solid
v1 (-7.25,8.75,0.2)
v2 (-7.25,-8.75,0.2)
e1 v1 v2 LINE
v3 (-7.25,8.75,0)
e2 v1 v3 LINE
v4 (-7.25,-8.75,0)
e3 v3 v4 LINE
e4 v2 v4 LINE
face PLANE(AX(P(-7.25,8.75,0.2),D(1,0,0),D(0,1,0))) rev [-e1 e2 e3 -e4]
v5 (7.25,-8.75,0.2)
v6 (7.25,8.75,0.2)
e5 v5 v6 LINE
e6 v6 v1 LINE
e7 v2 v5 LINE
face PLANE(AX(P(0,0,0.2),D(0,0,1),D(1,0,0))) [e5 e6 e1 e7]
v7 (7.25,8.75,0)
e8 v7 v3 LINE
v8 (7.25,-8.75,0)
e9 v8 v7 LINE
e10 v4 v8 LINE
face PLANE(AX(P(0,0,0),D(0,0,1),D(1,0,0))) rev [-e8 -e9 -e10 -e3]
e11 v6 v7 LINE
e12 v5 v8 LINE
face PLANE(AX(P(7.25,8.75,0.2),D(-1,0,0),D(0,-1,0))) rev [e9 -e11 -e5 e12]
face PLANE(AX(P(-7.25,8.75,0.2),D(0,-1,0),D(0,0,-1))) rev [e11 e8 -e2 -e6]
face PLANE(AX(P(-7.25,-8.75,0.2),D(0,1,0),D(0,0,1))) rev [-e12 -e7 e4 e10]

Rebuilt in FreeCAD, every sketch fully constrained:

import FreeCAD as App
import Part
import Sketcher

V = App.Vector


def add_polygon(sketch, points):
    """Adds a closed chain of lines whose ends are joined by coincident constraints."""
    first, n = sketch.GeometryCount, len(points)
    for a, b in zip(points, points[1:] + points[:1]):
        sketch.addGeometry(Part.LineSegment(App.Vector(*a, 0), App.Vector(*b, 0)), False)
    for i in range(n):
        sketch.addConstraint(Sketcher.Constraint("Coincident", first + i, 2, first + (i + 1) % n, 1))

doc = App.newDocument("Part")
body = doc.addObject("PartDesign::Body", "Body")

# Sketch on XY plane
sketch1 = body.newObject("Sketcher::SketchObject", "Sketch")
sketch1.AttachmentSupport = (doc.getObject("XY_Plane"), [""])
sketch1.MapMode = "FlatFace"
add_polygon(sketch1, [(-7, 9), (-7, -9), (7, -9), (7, 9)])  # lines 0-3
sketch1.addConstraint(Sketcher.Constraint("Vertical", 0))
sketch1.addConstraint(Sketcher.Constraint("Horizontal", 1))
sketch1.addConstraint(Sketcher.Constraint("Vertical", 2))
sketch1.addConstraint(Sketcher.Constraint("Horizontal", 3))
sketch1.addConstraint(Sketcher.Constraint("Symmetric", 0, 2, 2, 2, -1, 1))
sketch1.addConstraint(Sketcher.Constraint("DistanceX", 1, 1, 1, 2, 14.5))
sketch1.addConstraint(Sketcher.Constraint("DistanceY", 0, 2, 0, 1, 17.5))
pad1 = body.newObject("PartDesign::Pad", "Pad")
pad1.Profile = sketch1
pad1.Length = 0.2

doc.recompute()
